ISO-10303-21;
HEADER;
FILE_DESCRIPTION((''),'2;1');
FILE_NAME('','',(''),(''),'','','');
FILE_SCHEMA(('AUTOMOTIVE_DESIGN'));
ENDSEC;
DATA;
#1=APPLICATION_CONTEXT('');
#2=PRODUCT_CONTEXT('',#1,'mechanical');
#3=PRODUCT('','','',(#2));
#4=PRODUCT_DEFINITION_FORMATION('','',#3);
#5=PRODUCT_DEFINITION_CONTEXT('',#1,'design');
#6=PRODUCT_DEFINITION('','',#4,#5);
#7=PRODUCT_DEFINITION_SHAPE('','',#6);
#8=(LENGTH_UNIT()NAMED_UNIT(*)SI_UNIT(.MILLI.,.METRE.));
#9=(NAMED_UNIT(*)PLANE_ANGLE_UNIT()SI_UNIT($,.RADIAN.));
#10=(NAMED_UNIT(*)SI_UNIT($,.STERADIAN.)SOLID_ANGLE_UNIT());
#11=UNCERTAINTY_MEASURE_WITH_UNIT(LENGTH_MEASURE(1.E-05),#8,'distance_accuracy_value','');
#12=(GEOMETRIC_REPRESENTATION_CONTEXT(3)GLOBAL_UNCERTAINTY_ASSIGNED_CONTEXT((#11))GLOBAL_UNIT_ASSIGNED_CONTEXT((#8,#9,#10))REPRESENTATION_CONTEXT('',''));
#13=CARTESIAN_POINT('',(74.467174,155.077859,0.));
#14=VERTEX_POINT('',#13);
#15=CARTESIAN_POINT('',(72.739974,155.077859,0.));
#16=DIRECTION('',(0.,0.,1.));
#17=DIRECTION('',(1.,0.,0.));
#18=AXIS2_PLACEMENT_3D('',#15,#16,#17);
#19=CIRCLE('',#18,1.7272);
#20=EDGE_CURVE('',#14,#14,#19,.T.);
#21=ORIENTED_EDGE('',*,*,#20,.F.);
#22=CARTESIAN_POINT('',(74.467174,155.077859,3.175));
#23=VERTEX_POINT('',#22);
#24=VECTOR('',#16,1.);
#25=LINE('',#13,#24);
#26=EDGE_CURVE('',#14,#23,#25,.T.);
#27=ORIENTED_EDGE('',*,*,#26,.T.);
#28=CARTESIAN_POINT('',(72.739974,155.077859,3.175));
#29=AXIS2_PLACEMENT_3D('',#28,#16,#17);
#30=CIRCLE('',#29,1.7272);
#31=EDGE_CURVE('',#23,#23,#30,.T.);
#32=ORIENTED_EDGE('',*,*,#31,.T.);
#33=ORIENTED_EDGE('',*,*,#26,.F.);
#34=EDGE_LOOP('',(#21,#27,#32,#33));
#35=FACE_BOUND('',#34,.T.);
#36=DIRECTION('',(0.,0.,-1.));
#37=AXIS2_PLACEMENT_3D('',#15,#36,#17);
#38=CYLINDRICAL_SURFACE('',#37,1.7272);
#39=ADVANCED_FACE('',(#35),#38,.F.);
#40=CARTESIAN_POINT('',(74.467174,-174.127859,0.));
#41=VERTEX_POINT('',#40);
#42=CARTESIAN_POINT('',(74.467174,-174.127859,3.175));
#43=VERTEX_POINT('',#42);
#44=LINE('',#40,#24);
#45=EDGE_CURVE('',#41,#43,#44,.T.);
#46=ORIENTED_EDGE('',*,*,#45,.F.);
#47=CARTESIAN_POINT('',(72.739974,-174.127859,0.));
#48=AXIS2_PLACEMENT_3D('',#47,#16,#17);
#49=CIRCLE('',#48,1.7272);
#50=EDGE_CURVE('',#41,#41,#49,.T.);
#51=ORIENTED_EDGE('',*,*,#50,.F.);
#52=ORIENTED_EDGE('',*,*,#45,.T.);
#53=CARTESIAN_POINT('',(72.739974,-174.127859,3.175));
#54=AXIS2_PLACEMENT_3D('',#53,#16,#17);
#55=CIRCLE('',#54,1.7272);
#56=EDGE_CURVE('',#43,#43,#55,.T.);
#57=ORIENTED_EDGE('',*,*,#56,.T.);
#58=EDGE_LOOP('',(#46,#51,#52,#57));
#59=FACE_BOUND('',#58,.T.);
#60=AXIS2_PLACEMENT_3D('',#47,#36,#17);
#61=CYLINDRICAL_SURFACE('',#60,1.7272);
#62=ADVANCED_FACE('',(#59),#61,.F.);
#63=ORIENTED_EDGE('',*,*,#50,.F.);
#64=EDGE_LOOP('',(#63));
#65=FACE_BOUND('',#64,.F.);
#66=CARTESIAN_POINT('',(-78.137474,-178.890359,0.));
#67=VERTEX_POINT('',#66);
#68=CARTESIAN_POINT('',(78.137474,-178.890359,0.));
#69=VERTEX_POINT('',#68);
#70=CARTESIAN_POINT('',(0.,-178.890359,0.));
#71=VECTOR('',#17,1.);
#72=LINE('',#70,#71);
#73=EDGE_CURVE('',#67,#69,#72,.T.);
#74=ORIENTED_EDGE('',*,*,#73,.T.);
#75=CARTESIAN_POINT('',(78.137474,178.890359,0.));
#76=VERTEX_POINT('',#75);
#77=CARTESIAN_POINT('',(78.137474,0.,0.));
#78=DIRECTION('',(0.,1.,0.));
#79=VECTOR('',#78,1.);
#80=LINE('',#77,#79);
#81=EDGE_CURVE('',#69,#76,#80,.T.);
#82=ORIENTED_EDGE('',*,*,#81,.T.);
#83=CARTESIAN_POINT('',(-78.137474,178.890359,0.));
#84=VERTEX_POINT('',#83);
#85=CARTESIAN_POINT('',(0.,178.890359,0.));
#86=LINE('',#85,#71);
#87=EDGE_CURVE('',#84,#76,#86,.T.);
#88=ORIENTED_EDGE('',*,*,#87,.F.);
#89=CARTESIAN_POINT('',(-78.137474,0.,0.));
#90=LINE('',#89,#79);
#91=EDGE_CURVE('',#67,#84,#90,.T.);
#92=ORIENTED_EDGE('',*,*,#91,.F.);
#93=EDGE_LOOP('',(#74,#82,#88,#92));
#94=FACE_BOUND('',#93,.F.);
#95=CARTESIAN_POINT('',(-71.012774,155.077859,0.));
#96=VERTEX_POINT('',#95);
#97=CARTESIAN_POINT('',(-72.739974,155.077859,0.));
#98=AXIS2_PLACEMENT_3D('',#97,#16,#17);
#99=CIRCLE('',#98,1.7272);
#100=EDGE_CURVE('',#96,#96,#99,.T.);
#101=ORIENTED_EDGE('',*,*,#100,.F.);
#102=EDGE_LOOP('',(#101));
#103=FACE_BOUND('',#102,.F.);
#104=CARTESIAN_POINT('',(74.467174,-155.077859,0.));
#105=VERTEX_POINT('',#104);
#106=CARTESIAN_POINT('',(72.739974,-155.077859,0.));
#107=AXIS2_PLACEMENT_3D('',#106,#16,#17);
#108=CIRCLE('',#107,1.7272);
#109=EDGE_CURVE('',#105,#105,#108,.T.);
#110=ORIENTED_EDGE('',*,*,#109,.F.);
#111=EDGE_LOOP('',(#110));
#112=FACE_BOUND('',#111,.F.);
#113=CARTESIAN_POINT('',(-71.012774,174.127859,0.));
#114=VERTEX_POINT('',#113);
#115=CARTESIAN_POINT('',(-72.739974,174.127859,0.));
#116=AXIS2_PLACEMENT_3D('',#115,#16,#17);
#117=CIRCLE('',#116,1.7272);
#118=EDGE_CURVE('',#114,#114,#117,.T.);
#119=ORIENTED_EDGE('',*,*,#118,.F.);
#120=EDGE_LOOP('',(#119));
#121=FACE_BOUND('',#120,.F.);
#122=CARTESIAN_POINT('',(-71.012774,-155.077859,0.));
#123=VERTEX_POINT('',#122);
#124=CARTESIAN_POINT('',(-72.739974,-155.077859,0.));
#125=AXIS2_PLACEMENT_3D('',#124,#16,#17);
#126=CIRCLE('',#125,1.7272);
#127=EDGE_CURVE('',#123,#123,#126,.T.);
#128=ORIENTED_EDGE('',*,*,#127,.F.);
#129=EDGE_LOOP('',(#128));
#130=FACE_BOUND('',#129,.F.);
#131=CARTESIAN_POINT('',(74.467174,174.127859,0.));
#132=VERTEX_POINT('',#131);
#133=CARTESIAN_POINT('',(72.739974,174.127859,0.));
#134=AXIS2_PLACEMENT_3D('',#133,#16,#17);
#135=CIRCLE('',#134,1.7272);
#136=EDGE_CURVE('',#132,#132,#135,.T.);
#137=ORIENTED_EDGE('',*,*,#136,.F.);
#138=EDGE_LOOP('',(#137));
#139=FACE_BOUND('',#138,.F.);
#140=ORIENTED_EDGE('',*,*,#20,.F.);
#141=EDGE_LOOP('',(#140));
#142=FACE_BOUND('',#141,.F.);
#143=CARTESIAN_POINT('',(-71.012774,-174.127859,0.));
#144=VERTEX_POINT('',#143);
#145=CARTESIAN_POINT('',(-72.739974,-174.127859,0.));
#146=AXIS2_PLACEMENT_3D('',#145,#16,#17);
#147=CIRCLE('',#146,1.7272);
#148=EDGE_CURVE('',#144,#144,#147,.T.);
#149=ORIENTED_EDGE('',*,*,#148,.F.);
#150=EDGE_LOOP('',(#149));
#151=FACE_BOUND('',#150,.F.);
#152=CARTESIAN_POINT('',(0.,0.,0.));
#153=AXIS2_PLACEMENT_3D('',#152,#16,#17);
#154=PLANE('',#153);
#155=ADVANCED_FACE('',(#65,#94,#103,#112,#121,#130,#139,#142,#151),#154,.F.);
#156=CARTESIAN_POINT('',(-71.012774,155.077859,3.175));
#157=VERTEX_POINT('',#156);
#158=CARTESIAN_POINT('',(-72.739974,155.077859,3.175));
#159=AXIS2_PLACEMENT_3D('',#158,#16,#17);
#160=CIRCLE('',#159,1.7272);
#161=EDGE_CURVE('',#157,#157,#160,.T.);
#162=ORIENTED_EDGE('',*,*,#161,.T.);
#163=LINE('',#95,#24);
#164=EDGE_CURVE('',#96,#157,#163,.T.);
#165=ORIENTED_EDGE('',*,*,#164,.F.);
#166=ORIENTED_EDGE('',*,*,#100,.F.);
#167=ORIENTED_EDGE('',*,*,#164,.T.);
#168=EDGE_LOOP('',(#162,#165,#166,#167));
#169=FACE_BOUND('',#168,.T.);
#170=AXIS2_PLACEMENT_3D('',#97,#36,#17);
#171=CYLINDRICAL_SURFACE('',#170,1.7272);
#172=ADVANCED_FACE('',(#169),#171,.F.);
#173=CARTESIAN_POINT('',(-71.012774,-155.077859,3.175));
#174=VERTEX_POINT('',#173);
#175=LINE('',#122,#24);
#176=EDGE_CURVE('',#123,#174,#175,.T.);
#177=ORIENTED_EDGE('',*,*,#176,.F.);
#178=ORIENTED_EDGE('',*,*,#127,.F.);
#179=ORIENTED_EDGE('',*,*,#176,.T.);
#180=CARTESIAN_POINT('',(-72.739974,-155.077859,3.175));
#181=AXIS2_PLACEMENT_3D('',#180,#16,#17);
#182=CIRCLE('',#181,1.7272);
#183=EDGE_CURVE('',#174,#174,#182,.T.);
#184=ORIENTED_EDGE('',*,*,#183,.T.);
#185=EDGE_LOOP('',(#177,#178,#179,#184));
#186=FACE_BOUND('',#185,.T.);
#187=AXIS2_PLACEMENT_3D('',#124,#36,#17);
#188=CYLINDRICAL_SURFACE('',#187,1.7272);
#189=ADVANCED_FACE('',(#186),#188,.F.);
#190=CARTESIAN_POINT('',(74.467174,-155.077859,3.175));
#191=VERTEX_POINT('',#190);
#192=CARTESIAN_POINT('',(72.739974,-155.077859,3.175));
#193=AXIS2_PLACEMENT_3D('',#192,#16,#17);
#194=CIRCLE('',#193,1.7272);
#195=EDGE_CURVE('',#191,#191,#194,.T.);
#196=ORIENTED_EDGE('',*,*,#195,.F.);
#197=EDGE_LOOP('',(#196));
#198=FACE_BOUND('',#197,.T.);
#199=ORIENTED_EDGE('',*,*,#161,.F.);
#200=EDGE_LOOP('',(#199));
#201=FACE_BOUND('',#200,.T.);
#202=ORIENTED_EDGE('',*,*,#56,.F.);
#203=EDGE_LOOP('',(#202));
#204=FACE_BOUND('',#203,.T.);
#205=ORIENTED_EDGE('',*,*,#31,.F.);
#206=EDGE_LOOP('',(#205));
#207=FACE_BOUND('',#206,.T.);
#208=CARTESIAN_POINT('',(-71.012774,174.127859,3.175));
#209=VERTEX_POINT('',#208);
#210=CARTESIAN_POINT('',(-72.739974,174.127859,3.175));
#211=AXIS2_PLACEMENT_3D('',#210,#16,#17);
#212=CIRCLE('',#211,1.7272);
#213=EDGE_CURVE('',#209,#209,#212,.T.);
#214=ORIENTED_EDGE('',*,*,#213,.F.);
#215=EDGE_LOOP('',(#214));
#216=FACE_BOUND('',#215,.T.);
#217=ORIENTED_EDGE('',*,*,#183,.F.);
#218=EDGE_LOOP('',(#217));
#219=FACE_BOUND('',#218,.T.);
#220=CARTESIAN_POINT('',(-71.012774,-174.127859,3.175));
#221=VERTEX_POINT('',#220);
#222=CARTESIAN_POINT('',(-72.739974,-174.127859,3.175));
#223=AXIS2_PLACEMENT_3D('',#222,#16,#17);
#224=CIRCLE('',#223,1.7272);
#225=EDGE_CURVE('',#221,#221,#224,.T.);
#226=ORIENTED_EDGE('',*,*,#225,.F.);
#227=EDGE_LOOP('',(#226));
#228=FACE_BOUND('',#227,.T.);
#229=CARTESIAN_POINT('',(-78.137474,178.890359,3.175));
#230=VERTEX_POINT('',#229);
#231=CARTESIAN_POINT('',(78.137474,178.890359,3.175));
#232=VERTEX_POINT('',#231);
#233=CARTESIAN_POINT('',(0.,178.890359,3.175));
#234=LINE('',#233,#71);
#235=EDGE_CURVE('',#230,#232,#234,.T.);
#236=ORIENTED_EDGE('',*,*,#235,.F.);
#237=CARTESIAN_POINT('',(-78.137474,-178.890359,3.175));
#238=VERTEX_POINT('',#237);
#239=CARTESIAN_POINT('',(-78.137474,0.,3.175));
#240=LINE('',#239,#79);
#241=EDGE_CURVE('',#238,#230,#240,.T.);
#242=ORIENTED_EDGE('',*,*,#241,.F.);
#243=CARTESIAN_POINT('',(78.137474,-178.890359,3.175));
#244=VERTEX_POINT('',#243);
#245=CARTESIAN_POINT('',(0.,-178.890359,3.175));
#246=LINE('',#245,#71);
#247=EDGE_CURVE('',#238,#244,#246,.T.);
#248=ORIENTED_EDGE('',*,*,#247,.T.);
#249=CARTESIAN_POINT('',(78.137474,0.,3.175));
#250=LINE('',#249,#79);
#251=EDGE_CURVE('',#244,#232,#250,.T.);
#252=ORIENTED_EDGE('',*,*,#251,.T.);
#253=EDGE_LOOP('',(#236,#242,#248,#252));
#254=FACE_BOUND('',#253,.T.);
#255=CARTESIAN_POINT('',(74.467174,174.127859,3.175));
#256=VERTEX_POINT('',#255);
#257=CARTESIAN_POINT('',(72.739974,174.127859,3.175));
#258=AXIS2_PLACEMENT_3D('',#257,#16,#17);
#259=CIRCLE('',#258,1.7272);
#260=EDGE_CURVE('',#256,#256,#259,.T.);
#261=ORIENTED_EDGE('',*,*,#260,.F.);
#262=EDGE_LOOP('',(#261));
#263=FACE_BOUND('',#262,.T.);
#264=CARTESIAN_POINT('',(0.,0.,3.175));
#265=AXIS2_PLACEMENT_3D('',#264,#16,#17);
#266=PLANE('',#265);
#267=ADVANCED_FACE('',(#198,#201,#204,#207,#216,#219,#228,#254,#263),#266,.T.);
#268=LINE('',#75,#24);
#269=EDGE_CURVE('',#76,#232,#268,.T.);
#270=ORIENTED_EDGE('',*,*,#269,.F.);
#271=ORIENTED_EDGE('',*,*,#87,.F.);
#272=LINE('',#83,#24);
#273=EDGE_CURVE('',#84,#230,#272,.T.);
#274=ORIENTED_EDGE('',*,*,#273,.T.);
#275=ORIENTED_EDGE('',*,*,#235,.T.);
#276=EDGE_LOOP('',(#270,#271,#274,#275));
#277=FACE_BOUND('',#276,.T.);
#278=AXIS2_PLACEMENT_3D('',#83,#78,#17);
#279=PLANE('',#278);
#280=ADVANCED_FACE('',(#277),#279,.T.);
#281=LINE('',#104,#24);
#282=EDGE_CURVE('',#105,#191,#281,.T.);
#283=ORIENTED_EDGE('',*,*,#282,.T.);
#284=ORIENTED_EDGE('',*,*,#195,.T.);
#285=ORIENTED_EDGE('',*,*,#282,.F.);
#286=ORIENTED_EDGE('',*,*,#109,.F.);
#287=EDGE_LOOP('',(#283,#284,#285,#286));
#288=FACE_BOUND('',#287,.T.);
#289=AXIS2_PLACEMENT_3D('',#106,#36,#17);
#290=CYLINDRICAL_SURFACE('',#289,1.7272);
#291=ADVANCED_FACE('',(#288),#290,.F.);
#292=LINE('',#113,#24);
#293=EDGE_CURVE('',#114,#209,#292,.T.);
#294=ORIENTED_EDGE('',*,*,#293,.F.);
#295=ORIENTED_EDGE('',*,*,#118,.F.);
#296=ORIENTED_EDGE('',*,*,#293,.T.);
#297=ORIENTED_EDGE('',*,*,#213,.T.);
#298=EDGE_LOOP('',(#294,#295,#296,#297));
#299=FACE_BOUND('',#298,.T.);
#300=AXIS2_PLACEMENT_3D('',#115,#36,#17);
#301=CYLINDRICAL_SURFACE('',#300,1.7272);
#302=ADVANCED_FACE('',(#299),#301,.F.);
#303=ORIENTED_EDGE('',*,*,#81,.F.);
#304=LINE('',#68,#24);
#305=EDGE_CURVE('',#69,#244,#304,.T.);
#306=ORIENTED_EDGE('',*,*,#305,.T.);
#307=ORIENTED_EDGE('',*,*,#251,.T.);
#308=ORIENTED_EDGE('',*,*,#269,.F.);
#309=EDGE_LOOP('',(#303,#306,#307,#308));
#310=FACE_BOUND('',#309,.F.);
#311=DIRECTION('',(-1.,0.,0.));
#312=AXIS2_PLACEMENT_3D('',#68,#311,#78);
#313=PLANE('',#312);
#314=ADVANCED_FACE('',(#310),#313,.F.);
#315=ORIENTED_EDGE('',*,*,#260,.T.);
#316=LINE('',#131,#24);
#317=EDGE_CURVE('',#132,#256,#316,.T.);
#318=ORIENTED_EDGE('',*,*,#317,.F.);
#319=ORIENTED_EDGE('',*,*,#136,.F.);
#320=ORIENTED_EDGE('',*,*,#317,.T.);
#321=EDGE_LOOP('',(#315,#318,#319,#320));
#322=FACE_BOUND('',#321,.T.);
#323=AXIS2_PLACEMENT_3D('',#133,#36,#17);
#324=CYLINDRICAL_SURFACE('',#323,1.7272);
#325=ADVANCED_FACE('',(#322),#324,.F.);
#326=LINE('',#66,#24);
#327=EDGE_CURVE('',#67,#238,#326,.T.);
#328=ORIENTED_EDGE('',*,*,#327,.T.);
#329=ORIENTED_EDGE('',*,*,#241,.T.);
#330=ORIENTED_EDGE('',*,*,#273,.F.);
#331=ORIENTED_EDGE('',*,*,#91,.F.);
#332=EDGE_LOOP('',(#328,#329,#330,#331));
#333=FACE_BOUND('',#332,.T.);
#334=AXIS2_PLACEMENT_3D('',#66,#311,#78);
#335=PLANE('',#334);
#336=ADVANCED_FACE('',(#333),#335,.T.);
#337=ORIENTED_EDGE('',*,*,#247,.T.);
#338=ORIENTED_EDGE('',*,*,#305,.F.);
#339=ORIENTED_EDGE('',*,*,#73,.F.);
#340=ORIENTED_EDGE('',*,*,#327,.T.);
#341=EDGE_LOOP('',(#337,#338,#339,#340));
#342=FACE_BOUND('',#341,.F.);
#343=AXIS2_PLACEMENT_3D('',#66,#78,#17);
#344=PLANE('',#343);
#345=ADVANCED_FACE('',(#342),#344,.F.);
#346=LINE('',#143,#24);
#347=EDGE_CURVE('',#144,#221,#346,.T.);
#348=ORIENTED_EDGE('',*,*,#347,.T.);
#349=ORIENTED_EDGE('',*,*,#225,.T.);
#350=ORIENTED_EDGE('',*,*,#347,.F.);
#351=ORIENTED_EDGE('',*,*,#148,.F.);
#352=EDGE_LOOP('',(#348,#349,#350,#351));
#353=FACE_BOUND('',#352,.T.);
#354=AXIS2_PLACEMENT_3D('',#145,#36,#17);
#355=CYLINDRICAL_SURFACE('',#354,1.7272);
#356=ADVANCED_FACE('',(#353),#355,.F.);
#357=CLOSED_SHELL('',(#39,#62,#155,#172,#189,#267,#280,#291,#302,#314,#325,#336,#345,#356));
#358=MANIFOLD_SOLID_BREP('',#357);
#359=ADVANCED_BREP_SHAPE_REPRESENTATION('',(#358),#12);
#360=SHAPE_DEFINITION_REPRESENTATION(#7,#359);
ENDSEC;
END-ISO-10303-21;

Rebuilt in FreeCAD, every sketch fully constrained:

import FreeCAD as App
import Part
import Sketcher
from FreeCAD import Vector
Q = App.Units.Quantity

doc = App.newDocument("Part")
params = doc.addObject("Spreadsheet::Sheet", "Params")
for row, (alias, value) in enumerate([
    ("sketch1_diameter", "0.136 in"),
    ("pad1_length", "0.125 in"),
], start=1):
    params.set(f"A{row}", alias)
    params.set(f"B{row}", "=" + value)
    params.setAlias(f"B{row}", alias)

body = doc.addObject("PartDesign::Body", "Body")

sketch1 = body.newObject("Sketcher::SketchObject", "Sketch")
sketch1.AttachmentSupport = (doc.getObject("XY_Plane"), [""])
sketch1.MapMode = "FlatFace"
sketch1.addGeometry([
    Part.LineSegment(Vector(-78.1, 178.9, 0), Vector(-78.1, -178.9, 0)),
    Part.LineSegment(Vector(-78.1, -178.9, 0), Vector(78.1, -178.9, 0)),
    Part.LineSegment(Vector(78.1, -178.9, 0), Vector(78.1, 178.9, 0)),
    Part.LineSegment(Vector(78.1, 178.9, 0), Vector(-78.1, 178.9, 0)),
    Part.Circle(Vector(-72.7, -174.1, 0), Vector(0, 0, 1), 1.7),
    Part.Circle(Vector(-72.7, -155.1, 0), Vector(0, 0, 1), 1.7),
    Part.Circle(Vector(72.7, -174.1, 0), Vector(0, 0, 1), 1.7),
    Part.Circle(Vector(72.7, -155.1, 0), Vector(0, 0, 1), 1.7),
    Part.Circle(Vector(-72.7, 155.1, 0), Vector(0, 0, 1), 1.7),
    Part.Circle(Vector(-72.7, 174.1, 0), Vector(0, 0, 1), 1.7),
    Part.Circle(Vector(72.7, 155.1, 0), Vector(0, 0, 1), 1.7),
    Part.Circle(Vector(72.7, 174.1, 0), Vector(0, 0, 1), 1.7),
], False)
sketch1.addConstraint([
    Sketcher.Constraint("Coincident", 0, 2, 1, 1),
    Sketcher.Constraint("Coincident", 1, 2, 2, 1),
    Sketcher.Constraint("Coincident", 2, 2, 3, 1),
    Sketcher.Constraint("Coincident", 3, 2, 0, 1),
    Sketcher.Constraint("Vertical", 0),
    Sketcher.Constraint("Horizontal", 1),
    Sketcher.Constraint("Vertical", 2),
    Sketcher.Constraint("Horizontal", 3),
    Sketcher.Constraint("Equal", 4, 5),
    Sketcher.Constraint("Equal", 5, 6),
    Sketcher.Constraint("Equal", 6, 7),
    Sketcher.Constraint("Equal", 7, 8),
    Sketcher.Constraint("Equal", 8, 9),
    Sketcher.Constraint("Equal", 9, 10),
    Sketcher.Constraint("Equal", 10, 11),
    Sketcher.Constraint("Symmetric", 7, 3, 8, 3, -1, 1),
    Sketcher.Constraint("Symmetric", 6, 3, 9, 3, -1, 1),
    Sketcher.Constraint("Symmetric", 5, 3, 10, 3, -1, 1),
    Sketcher.Constraint("Symmetric", 4, 3, 11, 3, -1, 1),
    Sketcher.Constraint("Symmetric", 0, 2, 2, 2, -1, 1),
    Sketcher.Constraint("Symmetric", 4, 3, 6, 3, -2),
    Sketcher.Constraint("Symmetric", 5, 3, 7, 3, -2),
    Sketcher.Constraint("Vertical", 4, 3, 5, 3),
    Sketcher.Constraint("Diameter", 4, Q("0.136 in")),
    Sketcher.Constraint("DistanceY", 4, 3, 5, 3, Q("0.75 in")),
    Sketcher.Constraint("DistanceY", 0, 2, 4, 3, Q("0.1875 in")),
    Sketcher.Constraint("DistanceX", 0, 2, 4, 3, Q("0.2125 in")),
    Sketcher.Constraint("DistanceX", 1, 1, 1, 2, Q("156.274948 mm")),
    Sketcher.Constraint("DistanceY", 0, 2, 0, 1, Q("357.780718 mm")),
])
sketch1.setExpression("Constraints[23]", "Params.sketch1_diameter")
pad1 = body.newObject("PartDesign::Pad", "Pad")
pad1.Profile = sketch1
pad1.setExpression("Length", "Params.pad1_length")

doc.recompute()
